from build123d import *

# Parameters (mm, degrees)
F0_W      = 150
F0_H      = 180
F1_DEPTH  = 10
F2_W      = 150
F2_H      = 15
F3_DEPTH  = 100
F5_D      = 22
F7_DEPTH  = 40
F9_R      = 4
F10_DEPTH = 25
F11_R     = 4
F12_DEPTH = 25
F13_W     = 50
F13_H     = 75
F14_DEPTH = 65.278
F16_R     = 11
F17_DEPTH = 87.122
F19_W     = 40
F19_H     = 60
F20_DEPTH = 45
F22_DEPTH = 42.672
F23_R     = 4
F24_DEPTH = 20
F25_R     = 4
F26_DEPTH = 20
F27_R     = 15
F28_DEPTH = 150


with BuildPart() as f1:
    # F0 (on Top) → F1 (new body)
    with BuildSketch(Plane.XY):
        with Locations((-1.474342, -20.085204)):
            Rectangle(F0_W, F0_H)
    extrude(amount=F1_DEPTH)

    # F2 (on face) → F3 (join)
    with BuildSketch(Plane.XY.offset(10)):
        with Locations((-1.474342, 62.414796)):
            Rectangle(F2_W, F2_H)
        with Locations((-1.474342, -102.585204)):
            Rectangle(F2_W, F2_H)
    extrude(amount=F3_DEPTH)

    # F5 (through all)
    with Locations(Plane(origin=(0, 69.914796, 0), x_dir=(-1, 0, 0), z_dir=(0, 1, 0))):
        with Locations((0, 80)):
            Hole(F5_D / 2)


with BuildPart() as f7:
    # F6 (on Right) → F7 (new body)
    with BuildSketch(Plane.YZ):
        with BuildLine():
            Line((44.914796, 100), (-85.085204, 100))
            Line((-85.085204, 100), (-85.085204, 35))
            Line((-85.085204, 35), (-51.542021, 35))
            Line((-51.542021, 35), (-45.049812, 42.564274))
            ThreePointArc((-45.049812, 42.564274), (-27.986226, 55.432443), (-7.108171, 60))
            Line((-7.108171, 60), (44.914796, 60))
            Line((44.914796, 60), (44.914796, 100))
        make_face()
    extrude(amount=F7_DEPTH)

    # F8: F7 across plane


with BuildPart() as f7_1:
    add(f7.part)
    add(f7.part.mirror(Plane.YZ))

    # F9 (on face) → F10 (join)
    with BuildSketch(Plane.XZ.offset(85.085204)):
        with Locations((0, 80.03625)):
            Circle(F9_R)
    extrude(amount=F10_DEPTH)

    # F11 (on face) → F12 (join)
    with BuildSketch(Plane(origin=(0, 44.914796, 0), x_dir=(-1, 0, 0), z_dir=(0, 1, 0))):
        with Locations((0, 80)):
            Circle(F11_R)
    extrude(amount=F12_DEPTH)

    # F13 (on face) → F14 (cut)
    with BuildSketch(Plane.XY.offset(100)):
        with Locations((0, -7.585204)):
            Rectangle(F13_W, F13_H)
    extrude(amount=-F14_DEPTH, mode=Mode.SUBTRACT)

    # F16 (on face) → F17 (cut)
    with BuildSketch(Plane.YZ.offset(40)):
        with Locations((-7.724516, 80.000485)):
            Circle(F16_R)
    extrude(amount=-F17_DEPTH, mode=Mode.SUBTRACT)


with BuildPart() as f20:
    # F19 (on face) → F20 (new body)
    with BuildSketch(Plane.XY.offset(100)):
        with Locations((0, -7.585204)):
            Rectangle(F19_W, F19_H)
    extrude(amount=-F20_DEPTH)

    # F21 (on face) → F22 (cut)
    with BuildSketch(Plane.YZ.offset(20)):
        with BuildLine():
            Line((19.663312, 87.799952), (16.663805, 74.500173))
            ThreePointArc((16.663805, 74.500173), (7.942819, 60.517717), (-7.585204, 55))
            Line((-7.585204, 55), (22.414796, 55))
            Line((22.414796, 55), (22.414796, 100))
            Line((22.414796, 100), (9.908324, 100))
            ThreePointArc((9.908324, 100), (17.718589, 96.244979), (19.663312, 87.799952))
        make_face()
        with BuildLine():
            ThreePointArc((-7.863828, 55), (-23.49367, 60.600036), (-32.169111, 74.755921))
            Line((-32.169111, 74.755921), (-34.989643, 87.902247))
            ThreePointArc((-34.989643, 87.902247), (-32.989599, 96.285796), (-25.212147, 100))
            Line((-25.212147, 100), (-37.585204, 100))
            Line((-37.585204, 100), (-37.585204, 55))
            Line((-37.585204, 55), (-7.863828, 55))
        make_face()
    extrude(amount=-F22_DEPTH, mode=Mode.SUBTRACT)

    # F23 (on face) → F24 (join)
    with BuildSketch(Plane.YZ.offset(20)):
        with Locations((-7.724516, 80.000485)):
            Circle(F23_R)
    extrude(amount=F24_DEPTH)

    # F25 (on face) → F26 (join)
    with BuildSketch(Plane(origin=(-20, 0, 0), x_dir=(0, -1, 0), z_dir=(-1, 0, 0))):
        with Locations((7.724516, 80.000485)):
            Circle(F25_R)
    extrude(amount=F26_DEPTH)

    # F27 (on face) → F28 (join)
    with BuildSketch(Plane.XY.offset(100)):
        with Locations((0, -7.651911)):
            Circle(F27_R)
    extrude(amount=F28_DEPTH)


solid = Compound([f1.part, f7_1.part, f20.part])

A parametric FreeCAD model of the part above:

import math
import FreeCAD as App
import Part
import Sketcher

V = App.Vector

doc = App.newDocument("Part")
body = doc.addObject("PartDesign::Body", "Body")

# Sketch on XY plane
sketch1 = doc.addObject("Sketcher::SketchObject", "Sketch")
body.addObject(sketch1)
sketch1.AttachmentSupport = (doc.XY_Plane, [""])
sketch1.MapMode = "FlatFace"
sketch1.addGeometry(Part.LineSegment(V(-76, 70, 0), V(-76, -110, 0)), False)
sketch1.addGeometry(Part.LineSegment(V(-76, -110, 0), V(74, -110, 0)), False)
sketch1.addGeometry(Part.LineSegment(V(74, -110, 0), V(74, 70, 0)), False)
sketch1.addGeometry(Part.LineSegment(V(74, 70, 0), V(-76, 70, 0)), False)
sketch1.addConstraint(Sketcher.Constraint("Coincident", 0, 2, 1, 1))
sketch1.addConstraint(Sketcher.Constraint("Coincident", 1, 2, 2, 1))
sketch1.addConstraint(Sketcher.Constraint("Coincident", 2, 2, 3, 1))
sketch1.addConstraint(Sketcher.Constraint("Coincident", 3, 2, 0, 1))
sketch1.addConstraint(Sketcher.Constraint("Vertical", 0))
sketch1.addConstraint(Sketcher.Constraint("Horizontal", 1))
sketch1.addConstraint(Sketcher.Constraint("Vertical", 2))
sketch1.addConstraint(Sketcher.Constraint("Horizontal", 3))
sketch1.addConstraint(Sketcher.Constraint("DistanceX", 1, 1, 1, 2, 150.0))
sketch1.addConstraint(Sketcher.Constraint("DistanceY", 0, 2, 0, 1, 180.0))
sketch1.addConstraint(Sketcher.Constraint("DistanceX", 0, 2, -1, 1, 76.474342))
sketch1.addConstraint(Sketcher.Constraint("DistanceY", 0, 2, -1, 1, 110.085204))
pad1 = doc.addObject("PartDesign::Pad", "Pad")
body.addObject(pad1)
pad1.Profile = sketch1
pad1.Length = 10

# Sketch on XY plane
sketch2 = doc.addObject("Sketcher::SketchObject", "Sketch001")
body.addObject(sketch2)
sketch2.AttachmentSupport = (doc.XY_Plane, [""])
sketch2.MapMode = "FlatFace"
sketch2.AttachmentOffset = App.Placement(V(0, 0, 10), App.Rotation())
sketch2.addGeometry(Part.LineSegment(V(-76, 70, 0), V(-76, 55, 0)), False)
sketch2.addGeometry(Part.LineSegment(V(-76, 55, 0), V(74, 55, 0)), False)
sketch2.addGeometry(Part.LineSegment(V(74, 55, 0), V(74, 70, 0)), False)
sketch2.addGeometry(Part.LineSegment(V(74, 70, 0), V(-76, 70, 0)), False)
sketch2.addGeometry(Part.LineSegment(V(-76, -95, 0), V(-76, -110, 0)), False)
sketch2.addGeometry(Part.LineSegment(V(-76, -110, 0), V(74, -110, 0)), False)
sketch2.addGeometry(Part.LineSegment(V(74, -110, 0), V(74, -95, 0)), False)
sketch2.addGeometry(Part.LineSegment(V(74, -95, 0), V(-76, -95, 0)), False)
sketch2.addConstraint(Sketcher.Constraint("Coincident", 0, 2, 1, 1))
sketch2.addConstraint(Sketcher.Constraint("Coincident", 1, 2, 2, 1))
sketch2.addConstraint(Sketcher.Constraint("Coincident", 2, 2, 3, 1))
sketch2.addConstraint(Sketcher.Constraint("Coincident", 3, 2, 0, 1))
sketch2.addConstraint(Sketcher.Constraint("Coincident", 4, 2, 5, 1))
sketch2.addConstraint(Sketcher.Constraint("Coincident", 5, 2, 6, 1))
sketch2.addConstraint(Sketcher.Constraint("Coincident", 6, 2, 7, 1))
sketch2.addConstraint(Sketcher.Constraint("Coincident", 7, 2, 4, 1))
sketch2.addConstraint(Sketcher.Constraint("Vertical", 0))
sketch2.addConstraint(Sketcher.Constraint("Horizontal", 1))
sketch2.addConstraint(Sketcher.Constraint("Vertical", 2))
sketch2.addConstraint(Sketcher.Constraint("Horizontal", 3))
sketch2.addConstraint(Sketcher.Constraint("Vertical", 4))
sketch2.addConstraint(Sketcher.Constraint("Horizontal", 5))
sketch2.addConstraint(Sketcher.Constraint("Vertical", 6))
sketch2.addConstraint(Sketcher.Constraint("Horizontal", 7))
sketch2.addConstraint(Sketcher.Constraint("Vertical", 3, 2, 4, 2))
sketch2.addConstraint(Sketcher.Constraint("Vertical", 2, 2, 5, 2))
sketch2.addConstraint(Sketcher.Constraint("Equal", 2, 4))
sketch2.addConstraint(Sketcher.Constraint("DistanceX", 1, 1, 1, 2, 150.0))
sketch2.addConstraint(Sketcher.Constraint("DistanceY", 0, 2, 0, 1, 15.0))
sketch2.addConstraint(Sketcher.Constraint("DistanceY", 4, 2, 0, 2, 165.0))
sketch2.addConstraint(Sketcher.Constraint("DistanceX", 0, 2, -1, 1, 76.474342))
sketch2.addConstraint(Sketcher.Constraint("DistanceY", -1, 1, 0, 2, 54.914796))
pad2 = doc.addObject("PartDesign::Pad", "Pad001")
body.addObject(pad2)
pad2.Profile = sketch2
pad2.Length = 100

# Sketch on XZ plane
sketch3 = doc.addObject("Sketcher::SketchObject", "Sketch002")
body.addObject(sketch3)
sketch3.AttachmentSupport = (doc.XZ_Plane, [""])
sketch3.MapMode = "FlatFace"
sketch3.AttachmentOffset = App.Placement(V(0, 0, -69.914796), App.Rotation())
sketch3.addGeometry(Part.Circle(V(0, 80, 0), V(0, 0, 1), 11), False)
sketch3.addConstraint(Sketcher.Constraint("PointOnObject", 0, 3, -2))
sketch3.addConstraint(Sketcher.Constraint("Diameter", 0, 22.0))
sketch3.addConstraint(Sketcher.Constraint("DistanceY", -1, 1, 0, 3, 80.0))
doc.recompute()
hole = doc.addObject("PartDesign::Hole", "Hole")
body.addObject(hole)
hole.Profile = sketch3
hole.ThreadType = "None"
hole.Diameter = 22
hole.DepthType = "ThroughAll"
hole.Reversed = True
body2 = doc.addObject("PartDesign::Body", "Body001")

# Sketch on YZ plane
sketch4 = doc.addObject("Sketcher::SketchObject", "Sketch003")
body2.addObject(sketch4)
sketch4.AttachmentSupport = (doc.getObject("YZ_Plane001"), [""])
sketch4.MapMode = "FlatFace"
sketch4.addGeometry(Part.LineSegment(V(45, 100, 0), V(-85, 100, 0)), False)
sketch4.addGeometry(Part.LineSegment(V(-85, 100, 0), V(-85, 35, 0)), False)
sketch4.addGeometry(Part.LineSegment(V(-85, 35, 0), V(-52, 35, 0)), False)
sketch4.addGeometry(Part.LineSegment(V(-52, 35, 0), V(-45, 43, 0)), False)
sketch4.addGeometry(Part.ArcOfCircle(Part.Circle(V(-7, 10, 0), V(0, 0, 1), 50), math.radians(90), math.radians(139)), False)
sketch4.addGeometry(Part.LineSegment(V(-7, 60, 0), V(45, 60, 0)), False)
sketch4.addGeometry(Part.LineSegment(V(45, 60, 0), V(45, 100, 0)), False)
sketch4.addConstraint(Sketcher.Constraint("Coincident", 0, 2, 1, 1))
sketch4.addConstraint(Sketcher.Constraint("Coincident", 1, 2, 2, 1))
sketch4.addConstraint(Sketcher.Constraint("Coincident", 2, 2, 3, 1))
sketch4.addConstraint(Sketcher.Constraint("Tangent", 3, 2, 4, 2))
sketch4.addConstraint(Sketcher.Constraint("Tangent", 4, 1, 5, 1))
sketch4.addConstraint(Sketcher.Constraint("Coincident", 5, 2, 6, 1))
sketch4.addConstraint(Sketcher.Constraint("Coincident", 6, 2, 0, 1))
sketch4.addConstraint(Sketcher.Constraint("Horizontal", 0))
sketch4.addConstraint(Sketcher.Constraint("Vertical", 1))
sketch4.addConstraint(Sketcher.Constraint("Horizontal", 2))
sketch4.addConstraint(Sketcher.Constraint("Horizontal", 5))
sketch4.addConstraint(Sketcher.Constraint("Vertical", 6))
sketch4.addConstraint(Sketcher.Constraint("DistanceX", 0, 2, 0, 1, 130.0))
sketch4.addConstraint(Sketcher.Constraint("DistanceY", 1, 2, 1, 1, 65.0))
sketch4.addConstraint(Sketcher.Constraint("DistanceY", 6, 1, 6, 2, 40.0))
sketch4.addConstraint(Sketcher.Constraint("DistanceY", -1, 1, 0, 2, 100.0))
sketch4.addConstraint(Sketcher.Constraint("Radius", 4, 49.999998))
sketch4.addConstraint(Sketcher.Constraint("Distance", 3, 9.968301))
sketch4.addConstraint(Sketcher.Constraint("DistanceX", 2, 1, 2, 2, 33.543183))
sketch4.addConstraint(Sketcher.Constraint("DistanceX", 2, 2, -1, 1, 51.542021))
pad3 = doc.addObject("PartDesign::Pad", "Pad002")
body2.addObject(pad3)
pad3.Profile = sketch4
pad3.Length = 40
body3 = doc.addObject("PartDesign::Body", "Body002")
doc.recompute()

body3.BaseFeature = body2
doc.recompute()

mirroring = doc.addObject("Part::Mirroring", "Mirroring")
mirroring.Source = body2
mirroring.Base = V(0, 0, 0)
mirroring.Normal = V(1, 0, 0)
body4 = doc.addObject("PartDesign::Body", "Body003")
body4.BaseFeature = mirroring
boolean = doc.addObject("PartDesign::Boolean", "Boolean")
body3.addObject(boolean)
boolean.Type = "Fuse"
boolean.addObjects([body4])
doc.recompute()

# Sketch on XZ plane
sketch5 = doc.addObject("Sketcher::SketchObject", "Sketch004")
body3.addObject(sketch5)
sketch5.AttachmentSupport = (doc.getObject("XZ_Plane002"), [""])
sketch5.MapMode = "FlatFace"
sketch5.AttachmentOffset = App.Placement(V(0, 0, 85.085204), App.Rotation())
sketch5.addGeometry(Part.Circle(V(0, 80, 0), V(0, 0, 1), 4), False)
sketch5.addConstraint(Sketcher.Constraint("PointOnObject", 0, 3, -2))
sketch5.addConstraint(Sketcher.Constraint("Diameter", 0, 8.0))
sketch5.addConstraint(Sketcher.Constraint("DistanceY", -1, 1, 0, 3, 80.03625))
pad4 = doc.addObject("PartDesign::Pad", "Pad003")
body3.addObject(pad4)
pad4.Profile = sketch5
pad4.Length = 25

# Sketch on XZ plane
sketch6 = doc.addObject("Sketcher::SketchObject", "Sketch005")
body3.addObject(sketch6)
sketch6.AttachmentSupport = (doc.getObject("XZ_Plane002"), [""])
sketch6.MapMode = "FlatFace"
sketch6.AttachmentOffset = App.Placement(V(0, 0, -44.914796), App.Rotation())
sketch6.addGeometry(Part.Circle(V(0, 80, 0), V(0, 0, 1), 4), False)
sketch6.addConstraint(Sketcher.Constraint("PointOnObject", 0, 3, -2))
sketch6.addConstraint(Sketcher.Constraint("Diameter", 0, 8.0))
sketch6.addConstraint(Sketcher.Constraint("DistanceY", -1, 1, 0, 3, 80.0))
pad5 = doc.addObject("PartDesign::Pad", "Pad004")
body3.addObject(pad5)
pad5.Profile = sketch6
pad5.Length = 25
pad5.Reversed = True

# Sketch on XY plane
sketch7 = doc.addObject("Sketcher::SketchObject", "Sketch006")
body3.addObject(sketch7)
sketch7.AttachmentSupport = (doc.getObject("XY_Plane002"), [""])
sketch7.MapMode = "FlatFace"
sketch7.AttachmentOffset = App.Placement(V(0, 0, 100), App.Rotation())
sketch7.addGeometry(Part.LineSegment(V(-25, 30, 0), V(-25, -45, 0)), False)
sketch7.addGeometry(Part.LineSegment(V(-25, -45, 0), V(25, -45, 0)), False)
sketch7.addGeometry(Part.LineSegment(V(25, -45, 0), V(25, 30, 0)), False)
sketch7.addGeometry(Part.LineSegment(V(25, 30, 0), V(-25, 30, 0)), False)
sketch7.addConstraint(Sketcher.Constraint("Coincident", 0, 2, 1, 1))
sketch7.addConstraint(Sketcher.Constraint("Coincident", 1, 2, 2, 1))
sketch7.addConstraint(Sketcher.Constraint("Coincident", 2, 2, 3, 1))
sketch7.addConstraint(Sketcher.Constraint("Coincident", 3, 2, 0, 1))
sketch7.addConstraint(Sketcher.Constraint("Vertical", 0))
sketch7.addConstraint(Sketcher.Constraint("Horizontal", 1))
sketch7.addConstraint(Sketcher.Constraint("Vertical", 2))
sketch7.addConstraint(Sketcher.Constraint("Horizontal", 3))
sketch7.addConstraint(Sketcher.Constraint("DistanceX", 1, 1, 1, 2, 50.0))
sketch7.addConstraint(Sketcher.Constraint("DistanceY", 0, 2, 0, 1, 75.0))
sketch7.addConstraint(Sketcher.Constraint("DistanceX", 0, 2, -1, 1, 25.0))
sketch7.addConstraint(Sketcher.Constraint("DistanceY", 0, 2, -1, 1, 45.085204))
pocket1 = doc.addObject("PartDesign::Pocket", "Pocket")
body3.addObject(pocket1)
pocket1.Profile = sketch7
pocket1.Length = 65.278

# Sketch on YZ plane
sketch8 = doc.addObject("Sketcher::SketchObject", "Sketch007")
body3.addObject(sketch8)
sketch8.AttachmentSupport = (doc.getObject("YZ_Plane002"), [""])
sketch8.MapMode = "FlatFace"
sketch8.AttachmentOffset = App.Placement(V(0, 0, 40), App.Rotation())
sketch8.addGeometry(Part.Circle(V(-8, 80, 0), V(0, 0, 1), 11), False)
sketch8.addConstraint(Sketcher.Constraint("Diameter", 0, 22.0))
sketch8.addConstraint(Sketcher.Constraint("DistanceX", 0, 3, -1, 1, 7.724516))
sketch8.addConstraint(Sketcher.Constraint("DistanceY", -1, 1, 0, 3, 80.000485))
pocket2 = doc.addObject("PartDesign::Pocket", "Pocket001")
body3.addObject(pocket2)
pocket2.Profile = sketch8
pocket2.Length = 87.122
body5 = doc.addObject("PartDesign::Body", "Body004")

# Sketch on XY plane
sketch9 = doc.addObject("Sketcher::SketchObject", "Sketch008")
body5.addObject(sketch9)
sketch9.AttachmentSupport = (doc.getObject("XY_Plane004"), [""])
sketch9.MapMode = "FlatFace"
sketch9.AttachmentOffset = App.Placement(V(0, 0, 100), App.Rotation())
sketch9.addGeometry(Part.LineSegment(V(-20, 22, 0), V(-20, -38, 0)), False)
sketch9.addGeometry(Part.LineSegment(V(-20, -38, 0), V(20, -38, 0)), False)
sketch9.addGeometry(Part.LineSegment(V(20, -38, 0), V(20, 22, 0)), False)
sketch9.addGeometry(Part.LineSegment(V(20, 22, 0), V(-20, 22, 0)), False)
sketch9.addConstraint(Sketcher.Constraint("Coincident", 0, 2, 1, 1))
sketch9.addConstraint(Sketcher.Constraint("Coincident", 1, 2, 2, 1))
sketch9.addConstraint(Sketcher.Constraint("Coincident", 2, 2, 3, 1))
sketch9.addConstraint(Sketcher.Constraint("Coincident", 3, 2, 0, 1))
sketch9.addConstraint(Sketcher.Constraint("Vertical", 0))
sketch9.addConstraint(Sketcher.Constraint("Horizontal", 1))
sketch9.addConstraint(Sketcher.Constraint("Vertical", 2))
sketch9.addConstraint(Sketcher.Constraint("Horizontal", 3))
sketch9.addConstraint(Sketcher.Constraint("DistanceX", 1, 1, 1, 2, 40.0))
sketch9.addConstraint(Sketcher.Constraint("DistanceY", 0, 2, 0, 1, 60.0))
sketch9.addConstraint(Sketcher.Constraint("DistanceX", 0, 2, -1, 1, 20.0))
sketch9.addConstraint(Sketcher.Constraint("DistanceY", 0, 2, -1, 1, 37.585204))
pad6 = doc.addObject("PartDesign::Pad", "Pad005")
body5.addObject(pad6)
pad6.Profile = sketch9
pad6.Length = 45
pad6.Reversed = True

# Sketch on YZ plane
sketch10 = doc.addObject("Sketcher::SketchObject", "Sketch009")
body5.addObject(sketch10)
sketch10.AttachmentSupport = (doc.getObject("YZ_Plane004"), [""])
sketch10.MapMode = "FlatFace"
sketch10.AttachmentOffset = App.Placement(V(0, 0, 20), App.Rotation())
sketch10.addGeometry(Part.LineSegment(V(19.663312, 87.799952, 0), V(16.663805, 74.500173, 0)), False)
sketch10.addGeometry(Part.ArcOfCircle(Part.Circle(V(-7.724517, 80.000486, 0), V(0, 0, 1), 25.000874), math.radians(-89.680728), math.radians(-12.709316)), False)
sketch10.addGeometry(Part.LineSegment(V(-7.585204, 55, 0), V(22.414796, 55, 0)), False)
sketch10.addGeometry(Part.LineSegment(V(22.414796, 55, 0), V(22.414796, 100, 0)), False)
sketch10.addGeometry(Part.LineSegment(V(22.414796, 100, 0), V(9.908324, 100, 0)), False)
sketch10.addGeometry(Part.ArcOfCircle(Part.Circle(V(9.908324, 90, 0), V(0, 0, 1), 10), math.radians(-12.709315), math.radians(90.000001)), False)
sketch10.addGeometry(Part.ArcOfCircle(Part.Circle(V(-7.724515, 80.000487, 0), V(0, 0, 1), 25.000875), math.radians(-167.890815), math.radians(-90.319273)), False)
sketch10.addGeometry(Part.LineSegment(V(-32.169111, 74.755921, 0), V(-34.989643, 87.902247, 0)), False)
sketch10.addGeometry(Part.ArcOfCircle(Part.Circle(V(-25.212146, 90, 0), V(0, 0, 1), 10), math.radians(90.000005), math.radians(192.109181)), False)
sketch10.addGeometry(Part.LineSegment(V(-25.212147, 100, 0), V(-37.585204, 100, 0)), False)
sketch10.addGeometry(Part.LineSegment(V(-37.585204, 100, 0), V(-37.585204, 55, 0)), False)
sketch10.addGeometry(Part.LineSegment(V(-37.585204, 55, 0), V(-7.863828, 55, 0)), False)
sketch10.addConstraint(Sketcher.Constraint("Tangent", 0, 2, 1, 2))
sketch10.addConstraint(Sketcher.Constraint("Coincident", 1, 1, 2, 1))
sketch10.addConstraint(Sketcher.Constraint("Coincident", 2, 2, 3, 1))
sketch10.addConstraint(Sketcher.Constraint("Coincident", 3, 2, 4, 1))
sketch10.addConstraint(Sketcher.Constraint("Tangent", 4, 2, 5, 2))
sketch10.addConstraint(Sketcher.Constraint("Tangent", 5, 1, 0, 1))
sketch10.addConstraint(Sketcher.Constraint("Tangent", 6, 1, 7, 1))
sketch10.addConstraint(Sketcher.Constraint("Tangent", 7, 2, 8, 2))
sketch10.addConstraint(Sketcher.Constraint("Tangent", 8, 1, 9, 1))
sketch10.addConstraint(Sketcher.Constraint("Coincident", 9, 2, 10, 1))
sketch10.addConstraint(Sketcher.Constraint("Coincident", 10, 2, 11, 1))
sketch10.addConstraint(Sketcher.Constraint("Coincident", 11, 2, 6, 2))
sketch10.addConstraint(Sketcher.Constraint("Horizontal", 2))
sketch10.addConstraint(Sketcher.Constraint("Vertical", 3))
sketch10.addConstraint(Sketcher.Constraint("Horizontal", 4))
sketch10.addConstraint(Sketcher.Constraint("Horizontal", 9))
sketch10.addConstraint(Sketcher.Constraint("Vertical", 10))
sketch10.addConstraint(Sketcher.Constraint("Horizontal", 11))
sketch10.addConstraint(Sketcher.Constraint("Coincident", 6, 3, 1, 3))
sketch10.addConstraint(Sketcher.Constraint("Equal", 1, 6))
sketch10.addConstraint(Sketcher.Constraint("Equal", 5, 8))
sketch10.addConstraint(Sketcher.Constraint("Horizontal", 5, 3, 8, 3))
sketch10.addConstraint(Sketcher.Constraint("Horizontal", 2, 2, 10, 2))
sketch10.addConstraint(Sketcher.Constraint("Radius", 5, 10.0))
sketch10.addConstraint(Sketcher.Constraint("DistanceX", 2, 1, 2, 2, 30.0))
sketch10.addConstraint(Sketcher.Constraint("DistanceY", 3, 1, 3, 2, 45.0))
sketch10.addConstraint(Sketcher.Constraint("DistanceY", -1, 1, 5, 3, 90.0))
sketch10.addConstraint(Sketcher.Constraint("DistanceX", 10, 2, 1, 1, 30.0))
sketch10.addConstraint(Sketcher.Constraint("Radius", 1, 25.000874))
sketch10.addConstraint(Sketcher.Constraint("DistanceX", 4, 2, 4, 1, 12.506472))
sketch10.addConstraint(Sketcher.Constraint("DistanceX", 9, 2, 9, 1, 12.373057))
sketch10.addConstraint(Sketcher.Constraint("DistanceX", 11, 1, 11, 2, 29.721376))
sketch10.addConstraint(Sketcher.Constraint("DistanceX", 6, 1, -1, 1, 32.169111))
pocket3 = doc.addObject("PartDesign::Pocket", "Pocket002")
body5.addObject(pocket3)
pocket3.Profile = sketch10
pocket3.Length = 42.672

# Sketch on YZ plane
sketch11 = doc.addObject("Sketcher::SketchObject", "Sketch010")
body5.addObject(sketch11)
sketch11.AttachmentSupport = (doc.getObject("YZ_Plane004"), [""])
sketch11.MapMode = "FlatFace"
sketch11.AttachmentOffset = App.Placement(V(0, 0, 20), App.Rotation())
sketch11.addGeometry(Part.Circle(V(-7.7, 80, 0), V(0, 0, 1), 4), False)
sketch11.addConstraint(Sketcher.Constraint("Diameter", 0, 8.0))
sketch11.addConstraint(Sketcher.Constraint("DistanceX", 0, 3, -1, 1, 7.724516))
sketch11.addConstraint(Sketcher.Constraint("DistanceY", -1, 1, 0, 3, 80.000485))
pad7 = doc.addObject("PartDesign::Pad", "Pad006")
body5.addObject(pad7)
pad7.Profile = sketch11
pad7.Length = 20

# Sketch on YZ plane
sketch12 = doc.addObject("Sketcher::SketchObject", "Sketch011")
body5.addObject(sketch12)
sketch12.AttachmentSupport = (doc.getObject("YZ_Plane004"), [""])
sketch12.MapMode = "FlatFace"
sketch12.AttachmentOffset = App.Placement(V(0, 0, -20), App.Rotation())
sketch12.addGeometry(Part.Circle(V(-7.7, 80, 0), V(0, 0, 1), 4), False)
sketch12.addConstraint(Sketcher.Constraint("Diameter", 0, 8.0))
sketch12.addConstraint(Sketcher.Constraint("DistanceX", 0, 3, -1, 1, 7.724516))
sketch12.addConstraint(Sketcher.Constraint("DistanceY", -1, 1, 0, 3, 80.000485))
pad8 = doc.addObject("PartDesign::Pad", "Pad007")
body5.addObject(pad8)
pad8.Profile = sketch12
pad8.Length = 20
pad8.Reversed = True

# Sketch on XY plane
sketch13 = doc.addObject("Sketcher::SketchObject", "Sketch012")
body5.addObject(sketch13)
sketch13.AttachmentSupport = (doc.getObject("XY_Plane004"), [""])
sketch13.MapMode = "FlatFace"
sketch13.AttachmentOffset = App.Placement(V(0, 0, 100), App.Rotation())
sketch13.addGeometry(Part.Circle(V(0, -8, 0), V(0, 0, 1), 15), False)
sketch13.addConstraint(Sketcher.Constraint("PointOnObject", 0, 3, -2))
sketch13.addConstraint(Sketcher.Constraint("Diameter", 0, 30.0))
sketch13.addConstraint(Sketcher.Constraint("DistanceY", 0, 3, -1, 1, 7.651911))
pad9 = doc.addObject("PartDesign::Pad", "Pad008")
body5.addObject(pad9)
pad9.Profile = sketch13
pad9.Length = 150
mirroring.Visibility = False

doc.recompute()
